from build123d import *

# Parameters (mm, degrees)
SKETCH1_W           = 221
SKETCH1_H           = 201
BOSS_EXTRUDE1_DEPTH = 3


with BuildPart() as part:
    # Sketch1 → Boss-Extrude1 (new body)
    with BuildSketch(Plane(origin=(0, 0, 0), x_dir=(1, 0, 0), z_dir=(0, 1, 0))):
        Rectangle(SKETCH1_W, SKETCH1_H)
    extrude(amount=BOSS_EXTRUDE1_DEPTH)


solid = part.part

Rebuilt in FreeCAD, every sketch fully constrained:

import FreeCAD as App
import Part
import Sketcher

V = App.Vector


def add_polygon(sketch, points):
    """Adds a closed chain of lines whose ends are joined by coincident constraints."""
    first, n = sketch.GeometryCount, len(points)
    for a, b in zip(points, points[1:] + points[:1]):
        sketch.addGeometry(Part.LineSegment(App.Vector(*a, 0), App.Vector(*b, 0)), False)
    for i in range(n):
        sketch.addConstraint(Sketcher.Constraint("Coincident", first + i, 2, first + (i + 1) % n, 1))

doc = App.newDocument("Part")
body = doc.addObject("PartDesign::Body", "Body")

# Sketch on XZ plane
sketch1 = body.newObject("Sketcher::SketchObject", "Sketch")
sketch1.AttachmentSupport = (doc.getObject("XZ_Plane"), [""])
sketch1.MapMode = "FlatFace"
add_polygon(sketch1, [(-110, -100), (-110, 100), (110, 100), (110, -100)])  # lines 0-3
sketch1.addConstraint([
    Sketcher.Constraint("Vertical", 0),
    Sketcher.Constraint("Horizontal", 1),
    Sketcher.Constraint("Vertical", 2),
    Sketcher.Constraint("Horizontal", 3),
    Sketcher.Constraint("Symmetric", 0, 2, 2, 2, -1, 1),
    Sketcher.Constraint("DistanceX", 1, 1, 1, 2, 221.0),
    Sketcher.Constraint("DistanceY", 0, 1, 0, 2, 201.0),
])
pad1 = body.newObject("PartDesign::Pad", "Pad")
pad1.Profile = sketch1
pad1.Length = 3
pad1.Reversed = True

doc.recompute()
